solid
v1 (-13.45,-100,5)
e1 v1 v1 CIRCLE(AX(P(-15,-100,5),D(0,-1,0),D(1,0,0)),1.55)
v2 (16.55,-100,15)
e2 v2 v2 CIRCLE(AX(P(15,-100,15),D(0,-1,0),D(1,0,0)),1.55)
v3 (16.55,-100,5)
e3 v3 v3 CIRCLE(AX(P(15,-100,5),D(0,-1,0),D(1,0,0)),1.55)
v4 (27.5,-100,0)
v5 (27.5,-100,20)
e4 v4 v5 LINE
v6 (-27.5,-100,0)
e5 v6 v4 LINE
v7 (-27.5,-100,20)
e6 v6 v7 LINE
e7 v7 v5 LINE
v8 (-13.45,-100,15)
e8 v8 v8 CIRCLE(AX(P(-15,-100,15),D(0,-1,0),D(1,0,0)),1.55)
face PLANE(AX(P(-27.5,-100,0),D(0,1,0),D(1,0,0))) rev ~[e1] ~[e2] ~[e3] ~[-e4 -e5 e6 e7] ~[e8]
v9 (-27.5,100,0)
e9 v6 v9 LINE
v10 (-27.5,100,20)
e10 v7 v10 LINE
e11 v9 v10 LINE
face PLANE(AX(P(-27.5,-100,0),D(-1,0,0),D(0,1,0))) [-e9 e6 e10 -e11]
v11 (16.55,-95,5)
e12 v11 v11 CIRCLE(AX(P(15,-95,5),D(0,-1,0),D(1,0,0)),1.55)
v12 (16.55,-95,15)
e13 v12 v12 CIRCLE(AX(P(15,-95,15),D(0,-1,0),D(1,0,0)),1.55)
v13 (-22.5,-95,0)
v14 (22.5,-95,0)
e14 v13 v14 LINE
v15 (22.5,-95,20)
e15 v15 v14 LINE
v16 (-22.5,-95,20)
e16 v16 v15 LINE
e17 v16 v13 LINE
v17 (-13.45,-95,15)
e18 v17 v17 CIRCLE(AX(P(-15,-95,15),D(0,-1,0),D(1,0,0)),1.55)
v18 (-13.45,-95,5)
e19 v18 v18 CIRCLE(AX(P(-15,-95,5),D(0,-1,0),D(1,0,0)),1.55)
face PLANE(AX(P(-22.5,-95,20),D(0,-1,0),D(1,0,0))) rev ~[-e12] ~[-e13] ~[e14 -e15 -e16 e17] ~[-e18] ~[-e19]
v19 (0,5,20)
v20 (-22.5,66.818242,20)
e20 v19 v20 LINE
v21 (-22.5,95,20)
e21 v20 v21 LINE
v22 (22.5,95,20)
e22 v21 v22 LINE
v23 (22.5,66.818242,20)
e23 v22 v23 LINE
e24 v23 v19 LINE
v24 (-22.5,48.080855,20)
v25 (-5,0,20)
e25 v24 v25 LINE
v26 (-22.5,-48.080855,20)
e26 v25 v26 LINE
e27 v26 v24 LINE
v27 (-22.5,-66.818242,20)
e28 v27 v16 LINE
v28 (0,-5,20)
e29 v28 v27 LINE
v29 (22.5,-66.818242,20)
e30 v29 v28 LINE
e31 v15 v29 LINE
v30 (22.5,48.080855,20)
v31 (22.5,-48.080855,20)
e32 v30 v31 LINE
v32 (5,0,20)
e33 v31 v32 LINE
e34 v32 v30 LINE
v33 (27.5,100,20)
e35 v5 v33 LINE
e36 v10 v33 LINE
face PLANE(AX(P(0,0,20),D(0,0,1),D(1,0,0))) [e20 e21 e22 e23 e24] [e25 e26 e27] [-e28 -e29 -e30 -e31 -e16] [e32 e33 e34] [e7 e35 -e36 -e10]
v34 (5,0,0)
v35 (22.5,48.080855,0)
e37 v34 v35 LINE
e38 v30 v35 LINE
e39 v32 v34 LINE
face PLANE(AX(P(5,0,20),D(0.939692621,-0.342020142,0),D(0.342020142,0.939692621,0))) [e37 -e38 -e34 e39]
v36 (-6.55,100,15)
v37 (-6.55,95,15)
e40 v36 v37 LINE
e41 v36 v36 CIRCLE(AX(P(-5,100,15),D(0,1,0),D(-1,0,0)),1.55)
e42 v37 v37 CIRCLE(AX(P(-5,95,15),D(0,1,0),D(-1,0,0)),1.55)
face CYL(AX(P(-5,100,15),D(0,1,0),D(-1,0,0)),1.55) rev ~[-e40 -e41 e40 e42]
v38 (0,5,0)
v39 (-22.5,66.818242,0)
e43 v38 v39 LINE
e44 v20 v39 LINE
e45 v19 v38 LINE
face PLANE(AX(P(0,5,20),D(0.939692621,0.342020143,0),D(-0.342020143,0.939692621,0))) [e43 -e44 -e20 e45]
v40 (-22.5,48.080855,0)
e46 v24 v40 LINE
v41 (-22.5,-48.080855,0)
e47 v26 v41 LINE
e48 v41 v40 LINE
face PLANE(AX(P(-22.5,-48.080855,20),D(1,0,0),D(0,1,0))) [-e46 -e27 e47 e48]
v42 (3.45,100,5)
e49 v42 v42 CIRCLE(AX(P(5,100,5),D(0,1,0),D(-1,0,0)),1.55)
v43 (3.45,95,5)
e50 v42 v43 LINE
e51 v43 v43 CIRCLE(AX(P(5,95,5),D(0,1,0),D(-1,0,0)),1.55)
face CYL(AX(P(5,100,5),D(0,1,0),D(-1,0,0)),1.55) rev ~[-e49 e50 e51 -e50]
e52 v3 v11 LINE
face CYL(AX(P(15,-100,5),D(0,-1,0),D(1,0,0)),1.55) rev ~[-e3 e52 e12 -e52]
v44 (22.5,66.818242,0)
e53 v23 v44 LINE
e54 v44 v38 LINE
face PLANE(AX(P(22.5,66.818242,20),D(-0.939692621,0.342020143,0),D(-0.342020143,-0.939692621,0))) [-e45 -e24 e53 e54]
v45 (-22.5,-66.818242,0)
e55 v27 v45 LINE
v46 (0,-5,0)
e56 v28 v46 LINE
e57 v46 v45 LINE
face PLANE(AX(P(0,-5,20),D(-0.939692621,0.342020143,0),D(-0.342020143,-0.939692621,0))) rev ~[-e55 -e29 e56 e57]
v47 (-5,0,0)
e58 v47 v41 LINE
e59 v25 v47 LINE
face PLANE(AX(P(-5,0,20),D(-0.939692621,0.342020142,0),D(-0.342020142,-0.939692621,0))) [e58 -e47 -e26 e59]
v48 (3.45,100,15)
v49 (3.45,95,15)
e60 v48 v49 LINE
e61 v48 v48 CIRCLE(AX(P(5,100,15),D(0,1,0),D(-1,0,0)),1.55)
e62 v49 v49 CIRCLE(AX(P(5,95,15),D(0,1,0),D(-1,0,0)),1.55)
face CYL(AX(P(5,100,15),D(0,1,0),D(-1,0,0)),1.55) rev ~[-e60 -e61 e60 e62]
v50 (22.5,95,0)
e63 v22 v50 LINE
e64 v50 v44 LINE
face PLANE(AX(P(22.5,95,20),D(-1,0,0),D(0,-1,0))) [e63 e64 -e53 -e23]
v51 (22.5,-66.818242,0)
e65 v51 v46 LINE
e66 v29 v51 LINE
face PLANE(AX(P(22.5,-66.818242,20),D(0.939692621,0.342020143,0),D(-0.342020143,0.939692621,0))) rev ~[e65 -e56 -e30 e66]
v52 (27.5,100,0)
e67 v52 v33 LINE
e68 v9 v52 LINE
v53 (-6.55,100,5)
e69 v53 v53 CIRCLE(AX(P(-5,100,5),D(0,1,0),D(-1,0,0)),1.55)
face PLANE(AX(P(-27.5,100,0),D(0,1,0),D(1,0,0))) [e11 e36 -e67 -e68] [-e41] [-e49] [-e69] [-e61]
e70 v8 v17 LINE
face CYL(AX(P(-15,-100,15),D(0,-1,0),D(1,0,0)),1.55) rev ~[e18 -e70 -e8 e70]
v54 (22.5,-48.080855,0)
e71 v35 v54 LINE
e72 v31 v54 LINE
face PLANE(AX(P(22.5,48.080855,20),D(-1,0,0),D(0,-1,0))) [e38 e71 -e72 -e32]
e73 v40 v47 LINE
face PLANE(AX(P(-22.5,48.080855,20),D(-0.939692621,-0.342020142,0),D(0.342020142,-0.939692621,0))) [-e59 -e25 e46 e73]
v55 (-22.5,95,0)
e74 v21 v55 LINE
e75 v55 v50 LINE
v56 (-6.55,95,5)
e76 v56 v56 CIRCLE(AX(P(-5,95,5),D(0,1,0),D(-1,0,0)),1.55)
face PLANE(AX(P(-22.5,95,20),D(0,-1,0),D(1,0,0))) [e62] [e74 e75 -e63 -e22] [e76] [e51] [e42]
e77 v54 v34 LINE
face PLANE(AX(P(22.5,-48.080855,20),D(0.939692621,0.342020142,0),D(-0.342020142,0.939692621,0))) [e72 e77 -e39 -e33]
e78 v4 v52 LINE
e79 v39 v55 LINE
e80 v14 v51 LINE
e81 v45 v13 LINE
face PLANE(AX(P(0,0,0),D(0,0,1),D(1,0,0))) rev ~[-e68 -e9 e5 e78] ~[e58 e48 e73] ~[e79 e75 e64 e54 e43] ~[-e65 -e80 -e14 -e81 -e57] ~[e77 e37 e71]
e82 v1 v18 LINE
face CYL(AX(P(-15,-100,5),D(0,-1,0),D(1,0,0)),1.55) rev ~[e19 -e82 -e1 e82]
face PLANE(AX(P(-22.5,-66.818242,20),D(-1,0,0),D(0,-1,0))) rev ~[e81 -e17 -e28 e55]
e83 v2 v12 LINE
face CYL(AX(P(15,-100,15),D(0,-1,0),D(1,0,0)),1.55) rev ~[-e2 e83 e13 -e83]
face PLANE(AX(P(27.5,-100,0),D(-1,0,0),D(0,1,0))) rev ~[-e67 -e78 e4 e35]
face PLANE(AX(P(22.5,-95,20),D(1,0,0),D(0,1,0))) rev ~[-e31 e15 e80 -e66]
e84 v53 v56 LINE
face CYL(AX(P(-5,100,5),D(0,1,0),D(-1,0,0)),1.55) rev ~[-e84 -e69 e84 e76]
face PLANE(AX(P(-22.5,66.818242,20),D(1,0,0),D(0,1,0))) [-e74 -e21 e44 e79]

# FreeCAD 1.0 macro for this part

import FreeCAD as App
import Part
import Sketcher
Q = App.Units.Quantity


def add_polygon(sketch, points):
    """Adds a closed chain of lines whose ends are joined by coincident constraints."""
    first, n = sketch.GeometryCount, len(points)
    for a, b in zip(points, points[1:] + points[:1]):
        sketch.addGeometry(Part.LineSegment(App.Vector(*a, 0), App.Vector(*b, 0)), False)
    for i in range(n):
        sketch.addConstraint(Sketcher.Constraint("Coincident", first + i, 2, first + (i + 1) % n, 1))

doc = App.newDocument("Part")
body = doc.addObject("PartDesign::Body", "Body")

# Sketch on XY plane
sketch1 = body.newObject("Sketcher::SketchObject", "Sketch")
sketch1.AttachmentSupport = (doc.getObject("XY_Plane"), [""])
sketch1.MapMode = "FlatFace"
add_polygon(sketch1, [(-28, 100), (-28, -100), (28, -100), (28, 100)])  # lines 0-3
sketch1.addConstraint(Sketcher.Constraint("Vertical", 0))
sketch1.addConstraint(Sketcher.Constraint("Horizontal", 1))
sketch1.addConstraint(Sketcher.Constraint("Vertical", 2))
sketch1.addConstraint(Sketcher.Constraint("Horizontal", 3))
sketch1.addConstraint(Sketcher.Constraint("Symmetric", 0, 2, 2, 2, -1, 1))
sketch1.addConstraint(Sketcher.Constraint("DistanceX", 1, 1, 1, 2, 55.0))
sketch1.addConstraint(Sketcher.Constraint("DistanceY", 0, 2, 0, 1, 200.0))
pad1 = body.newObject("PartDesign::Pad", "Pad")
pad1.Profile = sketch1
pad1.Length = 20

# Sketch on XY plane
sketch2 = body.newObject("Sketcher::SketchObject", "Sketch001")
sketch2.AttachmentSupport = (doc.getObject("XY_Plane"), [""])
sketch2.MapMode = "FlatFace"
sketch2.AttachmentOffset = App.Placement(App.Vector(0, 0, 20), App.Rotation())
add_polygon(sketch2, [(-22, -95), (22, -95), (22, -67), (0, -5), (-22, -67)])  # lines 0-4
add_polygon(sketch2, [(22, 95), (-22, 95), (-22, 67), (0, 5), (22, 67)])  # lines 5-9
add_polygon(sketch2, [(-22, -48), (-5, 0), (-22, 48)])  # lines 10-12
add_polygon(sketch2, [(22, 48), (5, 0), (22, -48)])  # lines 13-15
sketch2.addConstraint(Sketcher.Constraint("Horizontal", 0))
sketch2.addConstraint(Sketcher.Constraint("Vertical", 1))
sketch2.addConstraint(Sketcher.Constraint("Vertical", 4))
sketch2.addConstraint(Sketcher.Constraint("Horizontal", 5))
sketch2.addConstraint(Sketcher.Constraint("Vertical", 6))
sketch2.addConstraint(Sketcher.Constraint("Vertical", 9))
sketch2.addConstraint(Sketcher.Constraint("Vertical", 12))
sketch2.addConstraint(Sketcher.Constraint("Vertical", 15))
sketch2.addConstraint(Sketcher.Constraint("Symmetric", 0, 2, 5, 2, -1, 1))
sketch2.addConstraint(Sketcher.Constraint("Symmetric", 2, 2, 7, 2, -1, 1))
sketch2.addConstraint(Sketcher.Constraint("Symmetric", 3, 2, 8, 2, -1, 1))
sketch2.addConstraint(Sketcher.Constraint("Symmetric", 10, 2, 13, 2, -1, 1))
sketch2.addConstraint(Sketcher.Constraint("Symmetric", 11, 2, 14, 2, -1, 1))
sketch2.addConstraint(Sketcher.Constraint("Symmetric", 1, 2, 3, 2, -2))
sketch2.addConstraint(Sketcher.Constraint("PointOnObject", 2, 2, -2))
sketch2.addConstraint(Sketcher.Constraint("PointOnObject", 10, 2, -1))
sketch2.addConstraint(Sketcher.Constraint("Parallel", 2, 7))
sketch2.addConstraint(Sketcher.Constraint("Parallel", 8, 10))
sketch2.addConstraint(Sketcher.Constraint("Parallel", 7, 11))
sketch2.addConstraint(Sketcher.Constraint("Parallel", 10, 13))
sketch2.addConstraint(Sketcher.Constraint("Vertical", 6, 2, 11, 2))
sketch2.addConstraint(Sketcher.Constraint("DistanceX", 0, 1, 0, 2, 45.0))
sketch2.addConstraint(Sketcher.Constraint("Angle", 2, Q("110 deg")))
sketch2.addConstraint(Sketcher.Constraint("DistanceY", 0, 2, -1, 1, 95.0))
sketch2.addConstraint(Sketcher.Constraint("DistanceY", 2, 2, -1, 1, 5.0))
sketch2.addConstraint(Sketcher.Constraint("DistanceX", 10, 2, -1, 1, 5.0))
pocket1 = body.newObject("PartDesign::Pocket", "Pocket")
pocket1.Profile = sketch2
pocket1.Length = 20

# Sketch on XZ plane
sketch3 = body.newObject("Sketcher::SketchObject", "Sketch002")
sketch3.AttachmentSupport = (doc.getObject("XZ_Plane"), [""])
sketch3.MapMode = "FlatFace"
sketch3.AttachmentOffset = App.Placement(App.Vector(0, 0, -100), App.Rotation())
sketch3.addGeometry(Part.Circle(App.Vector(5, 15, 0), App.Vector(0, 0, 1), 1.6), False)
sketch3.addGeometry(Part.Circle(App.Vector(-5, 15, 0), App.Vector(0, 0, 1), 1.6), False)
sketch3.addGeometry(Part.Circle(App.Vector(-5, 5, 0), App.Vector(0, 0, 1), 1.6), False)
sketch3.addGeometry(Part.Circle(App.Vector(5, 5, 0), App.Vector(0, 0, 1), 1.6), False)
sketch3.addConstraint(Sketcher.Constraint("Equal", 0, 1))
sketch3.addConstraint(Sketcher.Constraint("Equal", 1, 2))
sketch3.addConstraint(Sketcher.Constraint("Equal", 2, 3))
sketch3.addConstraint(Sketcher.Constraint("Symmetric", 0, 3, 1, 3, -2))
sketch3.addConstraint(Sketcher.Constraint("Symmetric", 2, 3, 3, 3, -2))
sketch3.addConstraint(Sketcher.Constraint("Vertical", 1, 3, 2, 3))
sketch3.addConstraint(Sketcher.Constraint("Diameter", 0, 3.1))
sketch3.addConstraint(Sketcher.Constraint("DistanceX", -1, 1, 0, 3, 5.0))
sketch3.addConstraint(Sketcher.Constraint("DistanceY", -1, 1, 0, 3, 15.0))
sketch3.addConstraint(Sketcher.Constraint("DistanceY", -1, 1, 2, 3, 5.0))
pocket2 = body.newObject("PartDesign::Pocket", "Pocket001")
pocket2.Profile = sketch3
pocket2.Length = 5
pocket2.Reversed = True

# Sketch on XZ plane
sketch4 = body.newObject("Sketcher::SketchObject", "Sketch003")
sketch4.AttachmentSupport = (doc.getObject("XZ_Plane"), [""])
sketch4.MapMode = "FlatFace"
sketch4.AttachmentOffset = App.Placement(App.Vector(0, 0, 100), App.Rotation())
sketch4.addGeometry(Part.Circle(App.Vector(-15, 15, 0), App.Vector(0, 0, 1), 1.6), False)
sketch4.addGeometry(Part.Circle(App.Vector(15, 15, 0), App.Vector(0, 0, 1), 1.6), False)
sketch4.addGeometry(Part.Circle(App.Vector(15, 5, 0), App.Vector(0, 0, 1), 1.6), False)
sketch4.addGeometry(Part.Circle(App.Vector(-15, 5, 0), App.Vector(0, 0, 1), 1.6), False)
sketch4.addConstraint(Sketcher.Constraint("Equal", 0, 1))
sketch4.addConstraint(Sketcher.Constraint("Equal", 1, 2))
sketch4.addConstraint(Sketcher.Constraint("Equal", 2, 3))
sketch4.addConstraint(Sketcher.Constraint("Symmetric", 0, 3, 1, 3, -2))
sketch4.addConstraint(Sketcher.Constraint("Symmetric", 2, 3, 3, 3, -2))
sketch4.addConstraint(Sketcher.Constraint("Vertical", 1, 3, 2, 3))
sketch4.addConstraint(Sketcher.Constraint("Diameter", 0, 3.1))
sketch4.addConstraint(Sketcher.Constraint("DistanceX", 0, 3, -1, 1, 15.0))
sketch4.addConstraint(Sketcher.Constraint("DistanceY", -1, 1, 0, 3, 15.0))
sketch4.addConstraint(Sketcher.Constraint("DistanceY", -1, 1, 2, 3, 5.0))
pocket3 = body.newObject("PartDesign::Pocket", "Pocket002")
pocket3.Profile = sketch4
pocket3.Length = 5

doc.recompute()
